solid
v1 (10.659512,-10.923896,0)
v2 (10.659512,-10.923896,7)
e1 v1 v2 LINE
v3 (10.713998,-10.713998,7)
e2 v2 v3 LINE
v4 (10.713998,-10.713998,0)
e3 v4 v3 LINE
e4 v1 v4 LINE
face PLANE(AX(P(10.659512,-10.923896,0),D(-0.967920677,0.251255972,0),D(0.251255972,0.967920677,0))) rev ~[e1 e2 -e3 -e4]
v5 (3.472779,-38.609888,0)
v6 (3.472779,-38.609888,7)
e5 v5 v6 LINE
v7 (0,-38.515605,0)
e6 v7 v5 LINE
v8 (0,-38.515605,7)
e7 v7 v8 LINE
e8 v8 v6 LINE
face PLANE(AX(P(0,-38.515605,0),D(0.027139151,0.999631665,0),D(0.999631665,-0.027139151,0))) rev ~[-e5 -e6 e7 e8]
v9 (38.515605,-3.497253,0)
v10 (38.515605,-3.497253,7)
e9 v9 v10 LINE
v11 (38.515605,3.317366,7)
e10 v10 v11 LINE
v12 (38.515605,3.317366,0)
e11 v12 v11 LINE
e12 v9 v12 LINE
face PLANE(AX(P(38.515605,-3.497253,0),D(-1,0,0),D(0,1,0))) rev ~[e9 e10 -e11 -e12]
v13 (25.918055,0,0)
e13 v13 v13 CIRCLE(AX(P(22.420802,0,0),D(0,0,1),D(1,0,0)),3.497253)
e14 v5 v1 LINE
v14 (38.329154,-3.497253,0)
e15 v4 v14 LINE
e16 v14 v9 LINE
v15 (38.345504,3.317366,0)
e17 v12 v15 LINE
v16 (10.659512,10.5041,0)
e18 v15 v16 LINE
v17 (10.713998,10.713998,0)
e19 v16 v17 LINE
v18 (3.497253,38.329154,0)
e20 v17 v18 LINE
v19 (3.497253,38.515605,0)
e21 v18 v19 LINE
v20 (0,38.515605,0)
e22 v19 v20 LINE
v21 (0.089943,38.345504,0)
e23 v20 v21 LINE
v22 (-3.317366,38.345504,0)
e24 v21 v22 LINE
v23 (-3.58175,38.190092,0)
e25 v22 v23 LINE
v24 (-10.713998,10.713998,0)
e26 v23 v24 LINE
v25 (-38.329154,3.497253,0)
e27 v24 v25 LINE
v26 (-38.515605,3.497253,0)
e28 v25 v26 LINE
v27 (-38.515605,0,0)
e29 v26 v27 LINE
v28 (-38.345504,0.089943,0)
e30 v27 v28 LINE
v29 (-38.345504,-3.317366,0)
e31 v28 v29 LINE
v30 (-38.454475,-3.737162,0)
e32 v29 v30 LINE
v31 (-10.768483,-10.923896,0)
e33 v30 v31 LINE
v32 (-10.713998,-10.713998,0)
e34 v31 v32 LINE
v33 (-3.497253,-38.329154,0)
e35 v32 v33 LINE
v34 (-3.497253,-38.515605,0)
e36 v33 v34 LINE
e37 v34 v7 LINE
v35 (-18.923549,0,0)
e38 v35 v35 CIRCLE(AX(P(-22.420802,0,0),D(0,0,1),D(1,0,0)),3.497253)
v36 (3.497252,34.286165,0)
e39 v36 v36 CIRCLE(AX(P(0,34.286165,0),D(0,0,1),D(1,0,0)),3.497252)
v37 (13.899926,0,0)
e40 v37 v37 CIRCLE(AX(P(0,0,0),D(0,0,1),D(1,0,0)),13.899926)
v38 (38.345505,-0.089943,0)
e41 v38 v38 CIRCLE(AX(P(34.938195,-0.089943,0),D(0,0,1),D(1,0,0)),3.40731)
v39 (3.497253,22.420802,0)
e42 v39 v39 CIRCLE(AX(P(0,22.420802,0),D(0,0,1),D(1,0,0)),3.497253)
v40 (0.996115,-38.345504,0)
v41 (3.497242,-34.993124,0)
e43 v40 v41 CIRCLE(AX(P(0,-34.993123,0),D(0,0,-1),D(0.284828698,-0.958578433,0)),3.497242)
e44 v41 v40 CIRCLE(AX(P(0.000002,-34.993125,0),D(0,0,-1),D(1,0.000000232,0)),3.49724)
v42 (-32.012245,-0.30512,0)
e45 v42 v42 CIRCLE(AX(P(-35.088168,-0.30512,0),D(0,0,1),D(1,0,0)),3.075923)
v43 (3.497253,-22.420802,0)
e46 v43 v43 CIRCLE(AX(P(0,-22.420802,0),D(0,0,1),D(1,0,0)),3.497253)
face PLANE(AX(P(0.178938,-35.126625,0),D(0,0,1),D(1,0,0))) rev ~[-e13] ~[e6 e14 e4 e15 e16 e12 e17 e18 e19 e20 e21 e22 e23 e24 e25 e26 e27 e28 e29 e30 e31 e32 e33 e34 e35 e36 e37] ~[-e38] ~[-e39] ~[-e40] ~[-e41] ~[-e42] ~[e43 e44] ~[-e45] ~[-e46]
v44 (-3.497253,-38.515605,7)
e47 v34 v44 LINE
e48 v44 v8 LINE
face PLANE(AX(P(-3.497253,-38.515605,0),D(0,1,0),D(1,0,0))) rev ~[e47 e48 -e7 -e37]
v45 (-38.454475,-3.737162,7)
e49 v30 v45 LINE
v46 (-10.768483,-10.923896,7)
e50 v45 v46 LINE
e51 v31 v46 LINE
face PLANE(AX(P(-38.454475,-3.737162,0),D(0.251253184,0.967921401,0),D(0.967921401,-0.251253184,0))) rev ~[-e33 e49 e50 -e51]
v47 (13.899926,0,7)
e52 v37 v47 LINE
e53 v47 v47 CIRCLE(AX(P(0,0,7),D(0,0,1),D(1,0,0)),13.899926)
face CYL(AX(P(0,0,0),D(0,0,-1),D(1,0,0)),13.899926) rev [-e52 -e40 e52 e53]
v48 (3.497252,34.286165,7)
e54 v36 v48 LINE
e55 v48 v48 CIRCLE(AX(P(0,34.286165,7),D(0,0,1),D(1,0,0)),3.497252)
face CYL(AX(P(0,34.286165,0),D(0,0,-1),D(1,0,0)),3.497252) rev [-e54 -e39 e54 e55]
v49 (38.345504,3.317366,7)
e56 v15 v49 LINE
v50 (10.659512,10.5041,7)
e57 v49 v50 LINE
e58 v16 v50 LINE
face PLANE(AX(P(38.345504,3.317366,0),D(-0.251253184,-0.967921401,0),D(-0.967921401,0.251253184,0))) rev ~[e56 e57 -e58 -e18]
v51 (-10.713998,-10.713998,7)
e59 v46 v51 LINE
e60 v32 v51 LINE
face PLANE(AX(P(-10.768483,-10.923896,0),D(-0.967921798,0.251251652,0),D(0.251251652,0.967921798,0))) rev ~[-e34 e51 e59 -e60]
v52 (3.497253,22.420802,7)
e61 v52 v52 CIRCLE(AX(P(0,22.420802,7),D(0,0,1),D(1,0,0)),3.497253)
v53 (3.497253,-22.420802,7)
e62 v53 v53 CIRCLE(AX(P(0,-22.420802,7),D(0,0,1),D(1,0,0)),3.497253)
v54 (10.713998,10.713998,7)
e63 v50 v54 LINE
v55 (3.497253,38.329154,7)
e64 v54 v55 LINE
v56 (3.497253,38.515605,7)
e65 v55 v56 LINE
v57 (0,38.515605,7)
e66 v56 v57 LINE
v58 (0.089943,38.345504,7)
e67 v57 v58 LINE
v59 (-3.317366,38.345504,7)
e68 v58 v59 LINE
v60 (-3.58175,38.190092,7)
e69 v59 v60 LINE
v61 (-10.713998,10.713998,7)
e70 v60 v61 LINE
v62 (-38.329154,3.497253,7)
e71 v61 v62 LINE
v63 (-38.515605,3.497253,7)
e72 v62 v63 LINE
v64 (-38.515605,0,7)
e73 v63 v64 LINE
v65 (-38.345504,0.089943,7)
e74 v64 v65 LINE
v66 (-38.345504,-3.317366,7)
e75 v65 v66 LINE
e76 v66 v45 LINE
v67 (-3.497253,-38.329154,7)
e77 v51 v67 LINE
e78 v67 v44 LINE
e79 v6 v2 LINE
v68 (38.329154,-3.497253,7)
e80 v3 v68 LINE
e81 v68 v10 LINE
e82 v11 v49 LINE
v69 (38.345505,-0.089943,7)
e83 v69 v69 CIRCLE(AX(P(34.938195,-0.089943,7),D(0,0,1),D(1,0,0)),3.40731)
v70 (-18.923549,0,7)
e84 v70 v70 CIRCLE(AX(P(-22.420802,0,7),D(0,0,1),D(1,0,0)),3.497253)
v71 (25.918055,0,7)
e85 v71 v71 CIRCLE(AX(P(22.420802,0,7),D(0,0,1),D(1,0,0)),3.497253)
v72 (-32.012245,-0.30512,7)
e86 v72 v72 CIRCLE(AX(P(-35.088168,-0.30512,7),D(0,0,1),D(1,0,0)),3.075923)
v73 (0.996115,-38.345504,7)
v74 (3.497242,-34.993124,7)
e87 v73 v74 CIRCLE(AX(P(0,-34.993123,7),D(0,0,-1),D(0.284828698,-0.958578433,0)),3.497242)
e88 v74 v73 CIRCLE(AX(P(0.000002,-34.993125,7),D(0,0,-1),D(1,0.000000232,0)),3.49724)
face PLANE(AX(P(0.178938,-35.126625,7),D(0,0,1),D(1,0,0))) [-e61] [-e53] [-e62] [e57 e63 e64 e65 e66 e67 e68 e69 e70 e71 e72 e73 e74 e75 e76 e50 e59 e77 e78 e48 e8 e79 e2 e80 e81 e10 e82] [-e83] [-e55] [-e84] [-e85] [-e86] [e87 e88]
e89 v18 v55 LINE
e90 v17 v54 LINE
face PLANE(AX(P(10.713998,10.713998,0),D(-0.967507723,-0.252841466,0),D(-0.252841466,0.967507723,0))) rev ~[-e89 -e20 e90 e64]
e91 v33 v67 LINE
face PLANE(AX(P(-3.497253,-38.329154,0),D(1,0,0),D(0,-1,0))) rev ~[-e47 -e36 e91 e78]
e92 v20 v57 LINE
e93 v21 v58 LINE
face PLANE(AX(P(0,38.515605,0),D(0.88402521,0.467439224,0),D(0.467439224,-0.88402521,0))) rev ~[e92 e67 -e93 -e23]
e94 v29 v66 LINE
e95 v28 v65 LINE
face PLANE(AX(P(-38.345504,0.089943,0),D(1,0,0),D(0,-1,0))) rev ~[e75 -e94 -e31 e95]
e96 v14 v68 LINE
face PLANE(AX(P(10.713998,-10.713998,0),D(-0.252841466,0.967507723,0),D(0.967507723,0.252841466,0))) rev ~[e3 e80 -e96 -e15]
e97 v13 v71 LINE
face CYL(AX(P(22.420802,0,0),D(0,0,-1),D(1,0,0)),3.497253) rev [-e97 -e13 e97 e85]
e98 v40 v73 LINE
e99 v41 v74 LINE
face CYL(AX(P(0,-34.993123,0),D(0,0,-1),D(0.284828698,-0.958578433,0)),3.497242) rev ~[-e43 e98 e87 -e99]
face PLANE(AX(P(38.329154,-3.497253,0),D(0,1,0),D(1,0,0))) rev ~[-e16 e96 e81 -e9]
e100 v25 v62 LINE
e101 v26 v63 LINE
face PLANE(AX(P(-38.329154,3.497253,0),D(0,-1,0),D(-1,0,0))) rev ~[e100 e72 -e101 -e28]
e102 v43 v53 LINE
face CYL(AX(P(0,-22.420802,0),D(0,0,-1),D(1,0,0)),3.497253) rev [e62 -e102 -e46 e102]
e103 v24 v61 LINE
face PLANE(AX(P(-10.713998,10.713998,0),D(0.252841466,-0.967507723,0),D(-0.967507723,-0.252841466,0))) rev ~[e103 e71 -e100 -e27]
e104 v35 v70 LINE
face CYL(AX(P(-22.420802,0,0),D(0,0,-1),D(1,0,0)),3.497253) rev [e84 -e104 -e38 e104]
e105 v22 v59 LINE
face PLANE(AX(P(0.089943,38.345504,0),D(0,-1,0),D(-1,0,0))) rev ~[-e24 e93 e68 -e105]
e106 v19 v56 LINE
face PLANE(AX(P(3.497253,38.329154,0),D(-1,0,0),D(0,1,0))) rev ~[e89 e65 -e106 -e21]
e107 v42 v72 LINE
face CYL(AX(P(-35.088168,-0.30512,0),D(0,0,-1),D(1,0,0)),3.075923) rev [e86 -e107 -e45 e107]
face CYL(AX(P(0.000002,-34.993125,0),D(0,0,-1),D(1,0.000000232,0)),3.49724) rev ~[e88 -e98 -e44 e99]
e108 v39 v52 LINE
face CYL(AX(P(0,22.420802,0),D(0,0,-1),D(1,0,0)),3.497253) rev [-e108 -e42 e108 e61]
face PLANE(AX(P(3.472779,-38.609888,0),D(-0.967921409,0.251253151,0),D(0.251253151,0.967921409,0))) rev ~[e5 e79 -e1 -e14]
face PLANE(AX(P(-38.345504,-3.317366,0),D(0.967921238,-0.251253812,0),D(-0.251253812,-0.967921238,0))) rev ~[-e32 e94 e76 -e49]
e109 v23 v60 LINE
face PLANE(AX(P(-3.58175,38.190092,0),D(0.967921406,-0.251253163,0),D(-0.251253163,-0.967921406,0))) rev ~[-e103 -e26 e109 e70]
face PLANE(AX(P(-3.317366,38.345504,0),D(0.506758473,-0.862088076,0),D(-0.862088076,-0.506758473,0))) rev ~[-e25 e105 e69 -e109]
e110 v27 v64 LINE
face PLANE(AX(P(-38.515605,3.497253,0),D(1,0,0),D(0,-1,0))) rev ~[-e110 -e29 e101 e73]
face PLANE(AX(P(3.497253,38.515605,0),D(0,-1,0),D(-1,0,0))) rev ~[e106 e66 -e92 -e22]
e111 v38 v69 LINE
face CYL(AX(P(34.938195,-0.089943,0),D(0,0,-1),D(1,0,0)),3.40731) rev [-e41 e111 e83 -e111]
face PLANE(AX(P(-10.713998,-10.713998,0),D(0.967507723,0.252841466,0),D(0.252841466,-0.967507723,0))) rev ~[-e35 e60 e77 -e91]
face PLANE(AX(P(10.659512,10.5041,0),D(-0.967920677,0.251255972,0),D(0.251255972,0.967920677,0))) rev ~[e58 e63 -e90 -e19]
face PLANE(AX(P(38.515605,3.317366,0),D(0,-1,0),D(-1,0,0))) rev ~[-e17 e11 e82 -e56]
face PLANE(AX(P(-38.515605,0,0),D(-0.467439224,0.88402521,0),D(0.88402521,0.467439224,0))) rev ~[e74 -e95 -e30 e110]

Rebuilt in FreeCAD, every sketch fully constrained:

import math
import FreeCAD as App
import Part
import Sketcher

V = App.Vector

doc = App.newDocument("Part")
body = doc.addObject("PartDesign::Body", "Body")

# Sketch on XY plane
sketch1 = body.newObject("Sketcher::SketchObject", "Sketch")
sketch1.AttachmentSupport = (doc.getObject("XY_Plane"), [""])
sketch1.MapMode = "FlatFace"
sketch1.addGeometry(Part.LineSegment(V(0, -38.515605, 0), V(3.472779, -38.609888, 0)), False)
sketch1.addGeometry(Part.LineSegment(V(3.472779, -38.609888, 0), V(10.659512, -10.923896, 0)), False)
sketch1.addGeometry(Part.LineSegment(V(10.659512, -10.923896, 0), V(10.713998, -10.713998, 0)), False)
sketch1.addGeometry(Part.LineSegment(V(10.713998, -10.713998, 0), V(38.329154, -3.497253, 0)), False)
sketch1.addGeometry(Part.LineSegment(V(38.329154, -3.497253, 0), V(38.515605, -3.497253, 0)), False)
sketch1.addGeometry(Part.LineSegment(V(38.515605, -3.497253, 0), V(38.515605, 3.317366, 0)), False)
sketch1.addGeometry(Part.LineSegment(V(38.515605, 3.317366, 0), V(38.345504, 3.317366, 0)), False)
sketch1.addGeometry(Part.LineSegment(V(38.345504, 3.317366, 0), V(10.659512, 10.5041, 0)), False)
sketch1.addGeometry(Part.LineSegment(V(10.659512, 10.5041, 0), V(10.713998, 10.713998, 0)), False)
sketch1.addGeometry(Part.LineSegment(V(10.713998, 10.713998, 0), V(3.497253, 38.329154, 0)), False)
sketch1.addGeometry(Part.LineSegment(V(3.497253, 38.329154, 0), V(3.497253, 38.515605, 0)), False)
sketch1.addGeometry(Part.LineSegment(V(3.497253, 38.515605, 0), V(0, 38.515605, 0)), False)
sketch1.addGeometry(Part.LineSegment(V(0, 38.515605, 0), V(0.089943, 38.345504, 0)), False)
sketch1.addGeometry(Part.LineSegment(V(0.089943, 38.345504, 0), V(-3.317366, 38.345504, 0)), False)
sketch1.addGeometry(Part.LineSegment(V(-3.317366, 38.345504, 0), V(-3.58175, 38.190092, 0)), False)
sketch1.addGeometry(Part.LineSegment(V(-3.58175, 38.190092, 0), V(-10.713998, 10.713998, 0)), False)
sketch1.addGeometry(Part.LineSegment(V(-10.713998, 10.713998, 0), V(-38.329154, 3.497253, 0)), False)
sketch1.addGeometry(Part.LineSegment(V(-38.329154, 3.497253, 0), V(-38.515605, 3.497253, 0)), False)
sketch1.addGeometry(Part.LineSegment(V(-38.515605, 3.497253, 0), V(-38.515605, 0, 0)), False)
sketch1.addGeometry(Part.LineSegment(V(-38.515605, 0, 0), V(-38.345504, 0.089943, 0)), False)
sketch1.addGeometry(Part.LineSegment(V(-38.345504, 0.089943, 0), V(-38.345504, -3.317366, 0)), False)
sketch1.addGeometry(Part.LineSegment(V(-38.345504, -3.317366, 0), V(-38.454475, -3.737162, 0)), False)
sketch1.addGeometry(Part.LineSegment(V(-38.454475, -3.737162, 0), V(-10.768483, -10.923896, 0)), False)
sketch1.addGeometry(Part.LineSegment(V(-10.768483, -10.923896, 0), V(-10.713998, -10.713998, 0)), False)
sketch1.addGeometry(Part.LineSegment(V(-10.713998, -10.713998, 0), V(-3.497253, -38.329154, 0)), False)
sketch1.addGeometry(Part.LineSegment(V(-3.497253, -38.329154, 0), V(-3.497253, -38.515605, 0)), False)
sketch1.addGeometry(Part.LineSegment(V(-3.497253, -38.515605, 0), V(0, -38.515605, 0)), False)
sketch1.addGeometry(Part.ArcOfCircle(Part.Circle(V(0.000002, -34.993125, 0), V(0, 0, 1), 3.49724), math.radians(-73.451414), math.radians(0.000013)), False)
sketch1.addGeometry(Part.ArcOfCircle(Part.Circle(V(0, -34.993123, 0), V(0, 0, 1), 3.497242), math.radians(-0.00001), math.radians(286.548609)), False)
sketch1.addGeometry(Part.Circle(V(0, -22.420802, 0), V(0, 0, 1), 3.497253), False)
sketch1.addGeometry(Part.Circle(V(-35.088168, -0.30512, 0), V(0, 0, 1), 3.075923), False)
sketch1.addGeometry(Part.Circle(V(-22.420802, 0, 0), V(0, 0, 1), 3.497253), False)
sketch1.addGeometry(Part.Circle(V(0, 0, 0), V(0, 0, 1), 13.899926), False)
sketch1.addGeometry(Part.Circle(V(0, 22.420802, 0), V(0, 0, 1), 3.497253), False)
sketch1.addGeometry(Part.Circle(V(0, 34.286165, 0), V(0, 0, 1), 3.497252), False)
sketch1.addGeometry(Part.Circle(V(22.420802, 0, 0), V(0, 0, 1), 3.497253), False)
sketch1.addGeometry(Part.Circle(V(34.938195, -0.089943, 0), V(0, 0, 1), 3.40731), False)
sketch1.addConstraint(Sketcher.Constraint("Coincident", 0, 2, 1, 1))
sketch1.addConstraint(Sketcher.Constraint("Coincident", 1, 2, 2, 1))
sketch1.addConstraint(Sketcher.Constraint("Coincident", 2, 2, 3, 1))
sketch1.addConstraint(Sketcher.Constraint("Coincident", 3, 2, 4, 1))
sketch1.addConstraint(Sketcher.Constraint("Coincident", 4, 2, 5, 1))
sketch1.addConstraint(Sketcher.Constraint("Coincident", 5, 2, 6, 1))
sketch1.addConstraint(Sketcher.Constraint("Coincident", 6, 2, 7, 1))
sketch1.addConstraint(Sketcher.Constraint("Coincident", 7, 2, 8, 1))
sketch1.addConstraint(Sketcher.Constraint("Coincident", 8, 2, 9, 1))
sketch1.addConstraint(Sketcher.Constraint("Coincident", 9, 2, 10, 1))
sketch1.addConstraint(Sketcher.Constraint("Coincident", 10, 2, 11, 1))
sketch1.addConstraint(Sketcher.Constraint("Coincident", 11, 2, 12, 1))
sketch1.addConstraint(Sketcher.Constraint("Coincident", 12, 2, 13, 1))
sketch1.addConstraint(Sketcher.Constraint("Coincident", 13, 2, 14, 1))
sketch1.addConstraint(Sketcher.Constraint("Coincident", 14, 2, 15, 1))
sketch1.addConstraint(Sketcher.Constraint("Coincident", 15, 2, 16, 1))
sketch1.addConstraint(Sketcher.Constraint("Coincident", 16, 2, 17, 1))
sketch1.addConstraint(Sketcher.Constraint("Coincident", 17, 2, 18, 1))
sketch1.addConstraint(Sketcher.Constraint("Coincident", 18, 2, 19, 1))
sketch1.addConstraint(Sketcher.Constraint("Coincident", 19, 2, 20, 1))
sketch1.addConstraint(Sketcher.Constraint("Coincident", 20, 2, 21, 1))
sketch1.addConstraint(Sketcher.Constraint("Coincident", 21, 2, 22, 1))
sketch1.addConstraint(Sketcher.Constraint("Coincident", 22, 2, 23, 1))
sketch1.addConstraint(Sketcher.Constraint("Coincident", 23, 2, 24, 1))
sketch1.addConstraint(Sketcher.Constraint("Coincident", 24, 2, 25, 1))
sketch1.addConstraint(Sketcher.Constraint("Coincident", 25, 2, 26, 1))
sketch1.addConstraint(Sketcher.Constraint("Coincident", 26, 2, 0, 1))
sketch1.addConstraint(Sketcher.Constraint("Tangent", 27, 1, 28, 2))
sketch1.addConstraint(Sketcher.Constraint("Coincident", 28, 1, 27, 2))
sketch1.addConstraint(Sketcher.Constraint("Horizontal", 4))
sketch1.addConstraint(Sketcher.Constraint("Vertical", 5))
sketch1.addConstraint(Sketcher.Constraint("Horizontal", 6))
sketch1.addConstraint(Sketcher.Constraint("Vertical", 10))
sketch1.addConstraint(Sketcher.Constraint("Horizontal", 11))
sketch1.addConstraint(Sketcher.Constraint("Horizontal", 13))
sketch1.addConstraint(Sketcher.Constraint("Horizontal", 17))
sketch1.addConstraint(Sketcher.Constraint("Vertical", 18))
sketch1.addConstraint(Sketcher.Constraint("Vertical", 20))
sketch1.addConstraint(Sketcher.Constraint("Vertical", 25))
sketch1.addConstraint(Sketcher.Constraint("Horizontal", 26))
sketch1.addConstraint(Sketcher.Constraint("Coincident", 32, 3, -1, 1))
sketch1.addConstraint(Sketcher.Constraint("Equal", 29, 31))
sketch1.addConstraint(Sketcher.Constraint("Equal", 31, 33))
sketch1.addConstraint(Sketcher.Constraint("Equal", 33, 34))
sketch1.addConstraint(Sketcher.Constraint("Equal", 34, 35))
sketch1.addConstraint(Sketcher.Constraint("Symmetric", 29, 3, 33, 3, -1, 1))
sketch1.addConstraint(Sketcher.Constraint("Symmetric", 31, 3, 35, 3, -1, 1))
sketch1.addConstraint(Sketcher.Constraint("Symmetric", 2, 2, 15, 2, -1, 1))
sketch1.addConstraint(Sketcher.Constraint("Symmetric", 3, 2, 16, 2, -1, 1))
sketch1.addConstraint(Sketcher.Constraint("Symmetric", 6, 2, 20, 2, -1, 1))
sketch1.addConstraint(Sketcher.Constraint("Symmetric", 8, 2, 23, 2, -1, 1))
sketch1.addConstraint(Sketcher.Constraint("Symmetric", 9, 2, 24, 2, -1, 1))
sketch1.addConstraint(Sketcher.Constraint("Symmetric", 11, 2, 26, 2, -1, 1))
sketch1.addConstraint(Sketcher.Constraint("Symmetric", 8, 2, 15, 2, -2))
sketch1.addConstraint(Sketcher.Constraint("PointOnObject", 28, 3, -2))
sketch1.addConstraint(Sketcher.Constraint("PointOnObject", 29, 3, -2))
sketch1.addConstraint(Sketcher.Constraint("PointOnObject", 31, 3, -1))
sketch1.addConstraint(Sketcher.Constraint("PointOnObject", 34, 3, -2))
sketch1.addConstraint(Sketcher.Constraint("PointOnObject", 11, 2, -2))
sketch1.addConstraint(Sketcher.Constraint("PointOnObject", 18, 2, -1))
sketch1.addConstraint(Sketcher.Constraint("Perpendicular", 1, 7))
sketch1.addConstraint(Sketcher.Constraint("Parallel", 2, 8))
sketch1.addConstraint(Sketcher.Constraint("Perpendicular", 3, 9))
sketch1.addConstraint(Sketcher.Constraint("Perpendicular", 7, 15))
sketch1.addConstraint(Sketcher.Constraint("Perpendicular", 12, 19))
sketch1.addConstraint(Sketcher.Constraint("Parallel", 15, 21))
sketch1.addConstraint(Sketcher.Constraint("Perpendicular", 21, 22))
sketch1.addConstraint(Sketcher.Constraint("Perpendicular", 22, 23))
sketch1.addConstraint(Sketcher.Constraint("Horizontal", 1, 2, 22, 2))
sketch1.addConstraint(Sketcher.Constraint("Horizontal", 27, 3, 28, 1))
sketch1.addConstraint(Sketcher.Constraint("Vertical", 1, 2, 7, 2))
sketch1.addConstraint(Sketcher.Constraint("Equal", 4, 17))
sketch1.addConstraint(Sketcher.Constraint("Equal", 17, 10))
sketch1.addConstraint(Sketcher.Constraint("Equal", 26, 18))
sketch1.addConstraint(Sketcher.Constraint("Equal", 13, 20))
sketch1.addConstraint(Sketcher.Constraint("Equal", 1, 7))
sketch1.addConstraint(Sketcher.Constraint("Equal", 3, 9))
sketch1.addConstraint(Sketcher.Constraint("Equal", 12, 19))
sketch1.addConstraint(Sketcher.Constraint("Equal", 7, 22))
sketch1.addConstraint(Sketcher.Constraint("Diameter", 36, 6.81462))
sketch1.addConstraint(Sketcher.Constraint("Radius", 27, 3.49724))
sketch1.addConstraint(Sketcher.Constraint("Diameter", 29, 6.994506))
sketch1.addConstraint(Sketcher.Constraint("Diameter", 30, 6.151846))
sketch1.addConstraint(Sketcher.Constraint("Diameter", 32, 27.799852))
sketch1.addConstraint(Sketcher.Constraint("DistanceX", 6, 2, 6, 1, 0.170101))
sketch1.addConstraint(Sketcher.Constraint("Distance", 15, 28.386699))
sketch1.addConstraint(Sketcher.Constraint("DistanceX", 4, 1, 4, 2, 0.186451))
sketch1.addConstraint(Sketcher.Constraint("DistanceX", 13, 2, 13, 1, 3.407309))
sketch1.addConstraint(Sketcher.Constraint("DistanceY", 5, 1, 5, 2, 6.814619))
sketch1.addConstraint(Sketcher.Constraint("DistanceY", 29, 3, -1, 1, 22.420802))
sketch1.addConstraint(Sketcher.Constraint("DistanceX", 31, 3, -1, 1, 22.420802))
sketch1.addConstraint(Sketcher.Constraint("DistanceY", -1, 1, 7, 2, 10.5041))
sketch1.addConstraint(Sketcher.Constraint("DistanceY", 7, 2, 8, 2, 0.209898))
sketch1.addConstraint(Sketcher.Constraint("DistanceY", 26, 2, 27, 1, 0.170101))
sketch1.addConstraint(Sketcher.Constraint("Distance", 0, 3.474059))
sketch1.addConstraint(Sketcher.Constraint("Distance", 3, 28.542569))
sketch1.addConstraint(Sketcher.Constraint("DistanceX", 30, 3, -1, 1, 35.088168))
sketch1.addConstraint(Sketcher.Constraint("DistanceY", 30, 3, -1, 1, 0.30512))
sketch1.addConstraint(Sketcher.Constraint("DistanceY", 28, 3, 29, 3, 12.572321))
sketch1.addConstraint(Sketcher.Constraint("DistanceY", 29, 3, 36, 3, 22.330859))
sketch1.addConstraint(Sketcher.Constraint("DistanceX", 36, 3, 3, 2, 3.390959))
sketch1.addConstraint(Sketcher.Constraint("DistanceY", 34, 3, 9, 2, 4.042989))
pad1 = body.newObject("PartDesign::Pad", "Pad")
pad1.Profile = sketch1
pad1.Length = 7

doc.recompute()
